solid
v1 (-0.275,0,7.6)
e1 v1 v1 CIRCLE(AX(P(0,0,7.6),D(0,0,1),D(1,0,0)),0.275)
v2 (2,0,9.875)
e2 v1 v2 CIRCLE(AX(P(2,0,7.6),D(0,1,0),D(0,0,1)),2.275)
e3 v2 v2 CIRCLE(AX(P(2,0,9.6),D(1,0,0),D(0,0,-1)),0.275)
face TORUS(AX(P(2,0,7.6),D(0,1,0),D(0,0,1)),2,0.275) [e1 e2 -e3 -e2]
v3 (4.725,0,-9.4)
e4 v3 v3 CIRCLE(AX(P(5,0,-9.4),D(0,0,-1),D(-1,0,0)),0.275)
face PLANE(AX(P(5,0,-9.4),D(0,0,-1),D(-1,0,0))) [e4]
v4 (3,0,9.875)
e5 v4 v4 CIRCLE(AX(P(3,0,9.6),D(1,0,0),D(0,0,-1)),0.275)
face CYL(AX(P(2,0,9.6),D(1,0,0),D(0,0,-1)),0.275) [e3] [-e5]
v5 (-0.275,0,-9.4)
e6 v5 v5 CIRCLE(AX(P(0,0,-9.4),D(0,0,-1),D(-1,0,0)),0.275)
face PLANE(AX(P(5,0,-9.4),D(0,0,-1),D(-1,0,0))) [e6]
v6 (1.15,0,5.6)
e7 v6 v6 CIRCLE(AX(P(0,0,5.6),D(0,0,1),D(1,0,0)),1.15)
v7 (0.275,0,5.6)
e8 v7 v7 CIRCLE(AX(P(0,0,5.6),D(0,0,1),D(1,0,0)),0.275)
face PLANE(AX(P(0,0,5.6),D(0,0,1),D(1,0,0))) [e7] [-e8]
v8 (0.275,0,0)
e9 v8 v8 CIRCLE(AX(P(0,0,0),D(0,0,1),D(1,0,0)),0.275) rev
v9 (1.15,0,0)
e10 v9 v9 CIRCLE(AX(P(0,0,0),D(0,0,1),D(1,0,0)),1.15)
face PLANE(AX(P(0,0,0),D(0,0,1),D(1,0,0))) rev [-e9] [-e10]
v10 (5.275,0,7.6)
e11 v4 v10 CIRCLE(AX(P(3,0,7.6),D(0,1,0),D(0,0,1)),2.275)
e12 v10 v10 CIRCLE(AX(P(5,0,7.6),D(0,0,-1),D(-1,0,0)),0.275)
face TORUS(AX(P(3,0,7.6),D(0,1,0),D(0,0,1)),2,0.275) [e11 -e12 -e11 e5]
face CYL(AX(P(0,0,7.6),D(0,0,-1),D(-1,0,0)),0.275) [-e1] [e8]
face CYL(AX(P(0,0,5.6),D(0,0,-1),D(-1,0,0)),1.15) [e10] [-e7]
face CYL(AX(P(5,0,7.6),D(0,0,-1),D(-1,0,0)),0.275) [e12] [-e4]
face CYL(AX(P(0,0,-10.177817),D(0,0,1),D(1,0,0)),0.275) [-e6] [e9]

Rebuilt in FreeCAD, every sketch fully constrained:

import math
import FreeCAD as App
import Part
import Sketcher
from FreeCAD import Vector

doc = App.newDocument("Part")
body = doc.addObject("PartDesign::Body", "Body")

sketch1 = body.newObject("Sketcher::SketchObject", "Sketch")
sketch1.AttachmentSupport = (doc.getObject("XY_Plane"), [""])
sketch1.MapMode = "FlatFace"
sketch1.addGeometry(Part.Circle(Vector(0, 0, 0), Vector(0, 0, 1), 1.1), False)
sketch1.addConstraint(Sketcher.Constraint("Coincident", 0, 3, -1, 1))
sketch1.addConstraint(Sketcher.Constraint("Diameter", 0, 2.3))
pad1 = body.newObject("PartDesign::Pad", "Pad")
pad1.Profile = sketch1
pad1.Length = 5.6

sketch2 = body.newObject("Sketcher::SketchObject", "Sketch001")
sketch2.AttachmentSupport = (doc.getObject("XY_Plane"), [""])
sketch2.MapMode = "FlatFace"
sketch2.AttachmentOffset = App.Placement(Vector(0, 0, 5.6), App.Rotation())
sketch2.addGeometry(Part.Circle(Vector(0, 0, 0), Vector(0, 0, 1), 0.28), False)
sketch2.addConstraint(Sketcher.Constraint("Coincident", 0, 3, -1, 1))
sketch2.addConstraint(Sketcher.Constraint("Diameter", 0, 0.55))

sketch3 = body.newObject("Sketcher::SketchObject", "Sketch002")
sketch3.AttachmentSupport = (doc.getObject("XZ_Plane"), [""])
sketch3.MapMode = "FlatFace"
sketch3.addGeometry(Part.LineSegment(Vector(0, 5.6, 0), Vector(0, 7.6, 0)), False)
sketch3.addGeometry(Part.ArcOfCircle(Part.Circle(Vector(2, 7.6, 0), Vector(0, 0, 1), 2), math.radians(90), math.radians(180)), False)
sketch3.addGeometry(Part.LineSegment(Vector(2, 9.6, 0), Vector(3, 9.6, 0)), False)
sketch3.addGeometry(Part.ArcOfCircle(Part.Circle(Vector(3, 7.6, 0), Vector(0, 0, 1), 2), math.radians(0), math.radians(90)), False)
sketch3.addGeometry(Part.LineSegment(Vector(5, 7.6, 0), Vector(5, -9.4, 0)), False)
sketch3.addConstraint(Sketcher.Constraint("Tangent", 0, 2, 1, 2))
sketch3.addConstraint(Sketcher.Constraint("Tangent", 1, 1, 2, 1))
sketch3.addConstraint(Sketcher.Constraint("Tangent", 2, 2, 3, 2))
sketch3.addConstraint(Sketcher.Constraint("Tangent", 3, 1, 4, 1))
sketch3.addConstraint(Sketcher.Constraint("Vertical", 0))
sketch3.addConstraint(Sketcher.Constraint("Horizontal", 2))
sketch3.addConstraint(Sketcher.Constraint("Vertical", 4))
sketch3.addConstraint(Sketcher.Constraint("Equal", 1, 3))
sketch3.addConstraint(Sketcher.Constraint("PointOnObject", 0, 1, -2))
sketch3.addConstraint(Sketcher.Constraint("Radius", 1, 2.0))
sketch3.addConstraint(Sketcher.Constraint("DistanceX", 2, 1, 2, 2, 1.0))
sketch3.addConstraint(Sketcher.Constraint("DistanceY", 0, 1, 0, 2, 2.0))
sketch3.addConstraint(Sketcher.Constraint("DistanceY", 4, 2, 4, 1, 17.0))
sketch3.addConstraint(Sketcher.Constraint("DistanceY", -1, 1, 1, 3, 7.6))
doc.recompute()

additivepipe = body.newObject("PartDesign::AdditivePipe", "AdditivePipe")
additivepipe.Profile = sketch2
additivepipe.Spine = (sketch3, ["Edge1", "Edge2", "Edge3", "Edge4", "Edge5"])

sketch4 = body.newObject("Sketcher::SketchObject", "Sketch003")
sketch4.AttachmentSupport = (doc.getObject("XY_Plane"), [""])
sketch4.MapMode = "FlatFace"
sketch4.addGeometry(Part.Circle(Vector(0, 0, 0), Vector(0, 0, 1), 0.28), False)
sketch4.addConstraint(Sketcher.Constraint("Coincident", 0, 3, -1, 1))
sketch4.addConstraint(Sketcher.Constraint("Diameter", 0, 0.55))
pad2 = body.newObject("PartDesign::Pad", "Pad001")
pad2.Profile = sketch4
pad2.Length = 9.4
pad2.Reversed = True

doc.recompute()
